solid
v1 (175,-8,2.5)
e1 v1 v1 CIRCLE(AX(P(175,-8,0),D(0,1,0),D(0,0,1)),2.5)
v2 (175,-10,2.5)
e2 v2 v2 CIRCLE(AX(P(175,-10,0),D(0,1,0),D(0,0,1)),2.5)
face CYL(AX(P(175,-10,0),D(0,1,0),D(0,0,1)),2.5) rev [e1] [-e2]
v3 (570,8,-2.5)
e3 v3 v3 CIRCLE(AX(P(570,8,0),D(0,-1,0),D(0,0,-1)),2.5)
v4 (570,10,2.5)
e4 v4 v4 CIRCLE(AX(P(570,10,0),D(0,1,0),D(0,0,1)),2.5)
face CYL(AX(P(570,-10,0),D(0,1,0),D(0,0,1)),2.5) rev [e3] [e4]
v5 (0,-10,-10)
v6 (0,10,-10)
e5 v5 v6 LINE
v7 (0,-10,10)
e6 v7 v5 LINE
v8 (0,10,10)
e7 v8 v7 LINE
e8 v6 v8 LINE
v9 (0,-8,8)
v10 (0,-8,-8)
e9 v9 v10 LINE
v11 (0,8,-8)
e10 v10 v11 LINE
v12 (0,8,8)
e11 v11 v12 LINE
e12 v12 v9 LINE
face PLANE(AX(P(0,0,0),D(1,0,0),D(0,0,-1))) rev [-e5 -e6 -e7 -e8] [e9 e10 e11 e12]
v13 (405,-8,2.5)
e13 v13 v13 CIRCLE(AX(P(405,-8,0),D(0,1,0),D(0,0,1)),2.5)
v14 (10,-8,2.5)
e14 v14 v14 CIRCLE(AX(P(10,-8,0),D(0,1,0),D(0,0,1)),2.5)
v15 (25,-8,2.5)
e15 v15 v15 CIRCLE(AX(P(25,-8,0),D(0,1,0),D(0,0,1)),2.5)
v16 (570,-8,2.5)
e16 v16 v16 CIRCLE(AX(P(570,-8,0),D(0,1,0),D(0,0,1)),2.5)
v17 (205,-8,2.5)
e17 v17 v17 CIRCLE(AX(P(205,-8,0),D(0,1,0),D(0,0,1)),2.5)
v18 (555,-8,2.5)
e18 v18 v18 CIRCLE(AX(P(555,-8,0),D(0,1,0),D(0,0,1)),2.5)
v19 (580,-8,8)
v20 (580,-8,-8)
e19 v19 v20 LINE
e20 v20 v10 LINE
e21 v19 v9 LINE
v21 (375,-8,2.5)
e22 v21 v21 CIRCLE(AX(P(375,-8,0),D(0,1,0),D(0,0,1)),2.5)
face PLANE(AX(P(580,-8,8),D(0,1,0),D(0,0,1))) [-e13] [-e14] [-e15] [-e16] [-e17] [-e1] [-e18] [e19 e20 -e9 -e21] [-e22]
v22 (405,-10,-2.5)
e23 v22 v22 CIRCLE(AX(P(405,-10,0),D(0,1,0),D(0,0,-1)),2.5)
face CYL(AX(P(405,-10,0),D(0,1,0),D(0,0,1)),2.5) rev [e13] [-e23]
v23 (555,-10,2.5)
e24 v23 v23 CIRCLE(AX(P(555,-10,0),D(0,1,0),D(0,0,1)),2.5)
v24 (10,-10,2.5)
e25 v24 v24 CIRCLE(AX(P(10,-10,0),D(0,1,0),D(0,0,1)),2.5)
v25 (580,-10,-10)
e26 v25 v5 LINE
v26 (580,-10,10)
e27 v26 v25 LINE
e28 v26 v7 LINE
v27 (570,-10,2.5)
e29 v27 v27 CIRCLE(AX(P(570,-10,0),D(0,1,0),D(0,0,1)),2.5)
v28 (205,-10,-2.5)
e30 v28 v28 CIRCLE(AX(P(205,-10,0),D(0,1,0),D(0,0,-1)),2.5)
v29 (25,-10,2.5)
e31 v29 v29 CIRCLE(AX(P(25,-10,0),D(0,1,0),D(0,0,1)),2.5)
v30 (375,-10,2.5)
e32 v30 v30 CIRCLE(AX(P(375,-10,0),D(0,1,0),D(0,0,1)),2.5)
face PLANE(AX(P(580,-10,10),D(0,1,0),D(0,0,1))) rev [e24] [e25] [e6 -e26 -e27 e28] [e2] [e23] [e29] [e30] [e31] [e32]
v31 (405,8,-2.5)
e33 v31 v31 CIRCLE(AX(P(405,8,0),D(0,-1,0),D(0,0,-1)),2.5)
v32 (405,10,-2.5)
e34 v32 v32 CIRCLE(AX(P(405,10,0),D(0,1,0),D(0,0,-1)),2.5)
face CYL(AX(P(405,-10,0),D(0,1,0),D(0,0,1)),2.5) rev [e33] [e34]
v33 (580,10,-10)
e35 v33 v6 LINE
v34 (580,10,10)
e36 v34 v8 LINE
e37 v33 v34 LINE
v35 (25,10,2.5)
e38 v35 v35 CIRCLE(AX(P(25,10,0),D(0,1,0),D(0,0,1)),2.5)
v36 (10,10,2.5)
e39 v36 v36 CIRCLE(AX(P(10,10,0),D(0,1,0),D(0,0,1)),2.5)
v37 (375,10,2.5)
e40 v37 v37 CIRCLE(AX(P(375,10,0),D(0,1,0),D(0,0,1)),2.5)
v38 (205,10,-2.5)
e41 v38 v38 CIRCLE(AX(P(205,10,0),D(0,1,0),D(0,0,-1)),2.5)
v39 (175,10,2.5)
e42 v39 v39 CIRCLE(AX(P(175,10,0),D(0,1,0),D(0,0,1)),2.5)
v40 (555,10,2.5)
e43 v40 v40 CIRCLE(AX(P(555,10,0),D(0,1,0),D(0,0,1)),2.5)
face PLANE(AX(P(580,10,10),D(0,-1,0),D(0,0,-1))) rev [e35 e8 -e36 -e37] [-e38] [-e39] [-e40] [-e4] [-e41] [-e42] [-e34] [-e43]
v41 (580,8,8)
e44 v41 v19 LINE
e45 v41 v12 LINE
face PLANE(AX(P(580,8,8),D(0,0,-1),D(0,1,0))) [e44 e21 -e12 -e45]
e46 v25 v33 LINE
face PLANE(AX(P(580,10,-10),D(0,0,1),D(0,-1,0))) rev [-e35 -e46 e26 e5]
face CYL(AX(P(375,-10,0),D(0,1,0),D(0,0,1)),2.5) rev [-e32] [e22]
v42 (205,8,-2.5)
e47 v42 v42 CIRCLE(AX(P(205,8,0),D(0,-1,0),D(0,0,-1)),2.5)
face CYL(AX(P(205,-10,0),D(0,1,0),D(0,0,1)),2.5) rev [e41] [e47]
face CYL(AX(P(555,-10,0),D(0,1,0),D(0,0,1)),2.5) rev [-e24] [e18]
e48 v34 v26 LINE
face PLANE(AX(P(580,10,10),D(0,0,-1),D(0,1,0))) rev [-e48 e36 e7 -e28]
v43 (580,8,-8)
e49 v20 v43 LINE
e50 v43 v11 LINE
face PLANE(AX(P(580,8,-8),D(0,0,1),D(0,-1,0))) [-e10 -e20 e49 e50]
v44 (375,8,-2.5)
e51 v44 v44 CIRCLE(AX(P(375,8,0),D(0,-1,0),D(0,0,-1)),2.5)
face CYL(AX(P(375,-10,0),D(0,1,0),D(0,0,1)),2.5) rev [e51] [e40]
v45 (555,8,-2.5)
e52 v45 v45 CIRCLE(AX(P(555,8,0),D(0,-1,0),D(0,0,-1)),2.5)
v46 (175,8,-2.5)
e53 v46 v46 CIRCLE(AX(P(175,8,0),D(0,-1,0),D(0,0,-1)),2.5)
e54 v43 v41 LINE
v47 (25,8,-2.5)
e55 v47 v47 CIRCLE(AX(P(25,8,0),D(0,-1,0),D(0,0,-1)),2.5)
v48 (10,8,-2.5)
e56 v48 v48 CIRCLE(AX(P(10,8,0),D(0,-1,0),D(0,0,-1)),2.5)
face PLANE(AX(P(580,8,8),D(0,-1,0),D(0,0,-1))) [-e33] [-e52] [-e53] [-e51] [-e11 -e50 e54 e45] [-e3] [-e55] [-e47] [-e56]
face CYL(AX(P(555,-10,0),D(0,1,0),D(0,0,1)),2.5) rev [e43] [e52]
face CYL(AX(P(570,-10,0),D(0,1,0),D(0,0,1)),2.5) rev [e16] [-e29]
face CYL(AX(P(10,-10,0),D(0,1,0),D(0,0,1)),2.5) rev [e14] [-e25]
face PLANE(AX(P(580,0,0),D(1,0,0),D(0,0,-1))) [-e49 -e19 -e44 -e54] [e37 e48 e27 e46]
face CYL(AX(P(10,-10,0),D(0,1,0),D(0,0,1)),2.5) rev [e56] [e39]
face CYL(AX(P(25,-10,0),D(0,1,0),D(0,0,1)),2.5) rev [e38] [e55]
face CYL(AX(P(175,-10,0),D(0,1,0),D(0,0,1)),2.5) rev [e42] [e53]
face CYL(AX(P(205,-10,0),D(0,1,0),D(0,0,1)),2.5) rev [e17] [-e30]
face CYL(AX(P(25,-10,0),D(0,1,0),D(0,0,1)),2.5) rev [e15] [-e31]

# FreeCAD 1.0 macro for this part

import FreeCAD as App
import Part
import Sketcher

V = App.Vector
Q = App.Units.Quantity


def add_polygon(sketch, points):
    """Adds a closed chain of lines whose ends are joined by coincident constraints."""
    first, n = sketch.GeometryCount, len(points)
    for a, b in zip(points, points[1:] + points[:1]):
        sketch.addGeometry(Part.LineSegment(App.Vector(*a, 0), App.Vector(*b, 0)), False)
    for i in range(n):
        sketch.addConstraint(Sketcher.Constraint("Coincident", first + i, 2, first + (i + 1) % n, 1))

doc = App.newDocument("Part")
params = doc.addObject("Spreadsheet::Sheet", "Params")
for row, (alias, value) in enumerate([
    ("sketch1_width", "20 mm"),
    ("sketch1_width2", "16 mm"),
    ("pad1_length", "580 mm"),
    ("sketch2_diameter", "5 mm"),
    ("sketch3_diameter", "5 mm"),
], start=1):
    params.set(f"A{row}", alias)
    params.set(f"B{row}", "=" + value)
    params.setAlias(f"B{row}", alias)

body = doc.addObject("PartDesign::Body", "Body")

# Sketch on YZ plane
sketch1 = body.newObject("Sketcher::SketchObject", "Sketch")
sketch1.AttachmentSupport = (doc.getObject("YZ_Plane"), [""])
sketch1.MapMode = "FlatFace"
add_polygon(sketch1, [(10, 10), (-10, 10), (-10, -10), (10, -10)])  # lines 0-3
add_polygon(sketch1, [(-8, -8), (-8, 8), (8, 8), (8, -8)])  # lines 4-7
sketch1.addConstraint(Sketcher.Constraint("Horizontal", 0))
sketch1.addConstraint(Sketcher.Constraint("Vertical", 1))
sketch1.addConstraint(Sketcher.Constraint("Horizontal", 2))
sketch1.addConstraint(Sketcher.Constraint("Vertical", 3))
sketch1.addConstraint(Sketcher.Constraint("Vertical", 4))
sketch1.addConstraint(Sketcher.Constraint("Horizontal", 5))
sketch1.addConstraint(Sketcher.Constraint("Vertical", 6))
sketch1.addConstraint(Sketcher.Constraint("Horizontal", 7))
sketch1.addConstraint(Sketcher.Constraint("Symmetric", 0, 2, 2, 2, -1, 1))
sketch1.addConstraint(Sketcher.Constraint("Symmetric", 4, 2, 6, 2, -1, 1))
sketch1.addConstraint(Sketcher.Constraint("Equal", 2, 1))
sketch1.addConstraint(Sketcher.Constraint("Equal", 7, 4))
sketch1.addConstraint(Sketcher.Constraint("DistanceX", 0, 2, 0, 1, Q("20 mm")))
sketch1.addConstraint(Sketcher.Constraint("DistanceX", 5, 1, 5, 2, Q("16 mm")))
sketch1.setExpression("Constraints[20]", "Params.sketch1_width")
sketch1.setExpression("Constraints[21]", "Params.sketch1_width2")
pad1 = body.newObject("PartDesign::Pad", "Pad")
pad1.Profile = sketch1
pad1.setExpression("Length", "Params.pad1_length")

# Sketch on XZ plane
sketch2 = body.newObject("Sketcher::SketchObject", "Sketch001")
sketch2.AttachmentSupport = (doc.getObject("XZ_Plane"), [""])
sketch2.MapMode = "FlatFace"
sketch2.AttachmentOffset = App.Placement(V(0, 0, -10), App.Rotation())
sketch2.addGeometry(Part.Circle(V(10, 0, 0), V(0, 0, 1), 2.5), False)
sketch2.addGeometry(Part.Circle(V(570, 0, 0), V(0, 0, 1), 2.5), False)
sketch2.addGeometry(Part.Circle(V(25, 0, 0), V(0, 0, 1), 2.5), False)
sketch2.addGeometry(Part.Circle(V(555, 0, 0), V(0, 0, 1), 2.5), False)
sketch2.addConstraint(Sketcher.Constraint("Equal", 0, 1))
sketch2.addConstraint(Sketcher.Constraint("Equal", 1, 2))
sketch2.addConstraint(Sketcher.Constraint("Equal", 2, 3))
sketch2.addConstraint(Sketcher.Constraint("PointOnObject", 0, 3, -1))
sketch2.addConstraint(Sketcher.Constraint("PointOnObject", 1, 3, -1))
sketch2.addConstraint(Sketcher.Constraint("PointOnObject", 2, 3, -1))
sketch2.addConstraint(Sketcher.Constraint("PointOnObject", 3, 3, -1))
sketch2.addConstraint(Sketcher.Constraint("Diameter", 0, Q("5 mm")))
sketch2.addConstraint(Sketcher.Constraint("DistanceX", -1, 1, 0, 3, Q("10 mm")))
sketch2.addConstraint(Sketcher.Constraint("DistanceX", -1, 1, 1, 3, Q("570 mm")))
sketch2.addConstraint(Sketcher.Constraint("DistanceX", -1, 1, 2, 3, Q("25 mm")))
sketch2.addConstraint(Sketcher.Constraint("DistanceX", -1, 1, 3, 3, Q("555 mm")))
sketch2.setExpression("Constraints[7]", "Params.sketch2_diameter")
pocket1 = body.newObject("PartDesign::Pocket", "Pocket")
pocket1.Profile = sketch2
pocket1.Type = "ThroughAll"
pocket1.Reversed = True

# Sketch on XZ plane
sketch3 = body.newObject("Sketcher::SketchObject", "Sketch002")
sketch3.AttachmentSupport = (doc.getObject("XZ_Plane"), [""])
sketch3.MapMode = "FlatFace"
sketch3.AttachmentOffset = App.Placement(V(0, 0, -10), App.Rotation())
sketch3.addGeometry(Part.Circle(V(175, 0, 0), V(0, 0, 1), 2.5), False)
sketch3.addGeometry(Part.Circle(V(405, 0, 0), V(0, 0, 1), 2.5), False)
sketch3.addGeometry(Part.Circle(V(205, 0, 0), V(0, 0, 1), 2.5), False)
sketch3.addGeometry(Part.Circle(V(375, 0, 0), V(0, 0, 1), 2.5), False)
sketch3.addConstraint(Sketcher.Constraint("Equal", 0, 1))
sketch3.addConstraint(Sketcher.Constraint("Equal", 1, 2))
sketch3.addConstraint(Sketcher.Constraint("Equal", 2, 3))
sketch3.addConstraint(Sketcher.Constraint("PointOnObject", 0, 3, -1))
sketch3.addConstraint(Sketcher.Constraint("PointOnObject", 1, 3, -1))
sketch3.addConstraint(Sketcher.Constraint("PointOnObject", 2, 3, -1))
sketch3.addConstraint(Sketcher.Constraint("PointOnObject", 3, 3, -1))
sketch3.addConstraint(Sketcher.Constraint("Diameter", 0, Q("5 mm")))
sketch3.addConstraint(Sketcher.Constraint("DistanceX", -1, 1, 0, 3, Q("175 mm")))
sketch3.addConstraint(Sketcher.Constraint("DistanceX", -1, 1, 1, 3, Q("405 mm")))
sketch3.addConstraint(Sketcher.Constraint("DistanceX", -1, 1, 2, 3, Q("205 mm")))
sketch3.addConstraint(Sketcher.Constraint("DistanceX", -1, 1, 3, 3, Q("375 mm")))
sketch3.setExpression("Constraints[7]", "Params.sketch3_diameter")
pocket2 = body.newObject("PartDesign::Pocket", "Pocket001")
pocket2.Profile = sketch3
pocket2.Type = "ThroughAll"
pocket2.Reversed = True

doc.recompute()
